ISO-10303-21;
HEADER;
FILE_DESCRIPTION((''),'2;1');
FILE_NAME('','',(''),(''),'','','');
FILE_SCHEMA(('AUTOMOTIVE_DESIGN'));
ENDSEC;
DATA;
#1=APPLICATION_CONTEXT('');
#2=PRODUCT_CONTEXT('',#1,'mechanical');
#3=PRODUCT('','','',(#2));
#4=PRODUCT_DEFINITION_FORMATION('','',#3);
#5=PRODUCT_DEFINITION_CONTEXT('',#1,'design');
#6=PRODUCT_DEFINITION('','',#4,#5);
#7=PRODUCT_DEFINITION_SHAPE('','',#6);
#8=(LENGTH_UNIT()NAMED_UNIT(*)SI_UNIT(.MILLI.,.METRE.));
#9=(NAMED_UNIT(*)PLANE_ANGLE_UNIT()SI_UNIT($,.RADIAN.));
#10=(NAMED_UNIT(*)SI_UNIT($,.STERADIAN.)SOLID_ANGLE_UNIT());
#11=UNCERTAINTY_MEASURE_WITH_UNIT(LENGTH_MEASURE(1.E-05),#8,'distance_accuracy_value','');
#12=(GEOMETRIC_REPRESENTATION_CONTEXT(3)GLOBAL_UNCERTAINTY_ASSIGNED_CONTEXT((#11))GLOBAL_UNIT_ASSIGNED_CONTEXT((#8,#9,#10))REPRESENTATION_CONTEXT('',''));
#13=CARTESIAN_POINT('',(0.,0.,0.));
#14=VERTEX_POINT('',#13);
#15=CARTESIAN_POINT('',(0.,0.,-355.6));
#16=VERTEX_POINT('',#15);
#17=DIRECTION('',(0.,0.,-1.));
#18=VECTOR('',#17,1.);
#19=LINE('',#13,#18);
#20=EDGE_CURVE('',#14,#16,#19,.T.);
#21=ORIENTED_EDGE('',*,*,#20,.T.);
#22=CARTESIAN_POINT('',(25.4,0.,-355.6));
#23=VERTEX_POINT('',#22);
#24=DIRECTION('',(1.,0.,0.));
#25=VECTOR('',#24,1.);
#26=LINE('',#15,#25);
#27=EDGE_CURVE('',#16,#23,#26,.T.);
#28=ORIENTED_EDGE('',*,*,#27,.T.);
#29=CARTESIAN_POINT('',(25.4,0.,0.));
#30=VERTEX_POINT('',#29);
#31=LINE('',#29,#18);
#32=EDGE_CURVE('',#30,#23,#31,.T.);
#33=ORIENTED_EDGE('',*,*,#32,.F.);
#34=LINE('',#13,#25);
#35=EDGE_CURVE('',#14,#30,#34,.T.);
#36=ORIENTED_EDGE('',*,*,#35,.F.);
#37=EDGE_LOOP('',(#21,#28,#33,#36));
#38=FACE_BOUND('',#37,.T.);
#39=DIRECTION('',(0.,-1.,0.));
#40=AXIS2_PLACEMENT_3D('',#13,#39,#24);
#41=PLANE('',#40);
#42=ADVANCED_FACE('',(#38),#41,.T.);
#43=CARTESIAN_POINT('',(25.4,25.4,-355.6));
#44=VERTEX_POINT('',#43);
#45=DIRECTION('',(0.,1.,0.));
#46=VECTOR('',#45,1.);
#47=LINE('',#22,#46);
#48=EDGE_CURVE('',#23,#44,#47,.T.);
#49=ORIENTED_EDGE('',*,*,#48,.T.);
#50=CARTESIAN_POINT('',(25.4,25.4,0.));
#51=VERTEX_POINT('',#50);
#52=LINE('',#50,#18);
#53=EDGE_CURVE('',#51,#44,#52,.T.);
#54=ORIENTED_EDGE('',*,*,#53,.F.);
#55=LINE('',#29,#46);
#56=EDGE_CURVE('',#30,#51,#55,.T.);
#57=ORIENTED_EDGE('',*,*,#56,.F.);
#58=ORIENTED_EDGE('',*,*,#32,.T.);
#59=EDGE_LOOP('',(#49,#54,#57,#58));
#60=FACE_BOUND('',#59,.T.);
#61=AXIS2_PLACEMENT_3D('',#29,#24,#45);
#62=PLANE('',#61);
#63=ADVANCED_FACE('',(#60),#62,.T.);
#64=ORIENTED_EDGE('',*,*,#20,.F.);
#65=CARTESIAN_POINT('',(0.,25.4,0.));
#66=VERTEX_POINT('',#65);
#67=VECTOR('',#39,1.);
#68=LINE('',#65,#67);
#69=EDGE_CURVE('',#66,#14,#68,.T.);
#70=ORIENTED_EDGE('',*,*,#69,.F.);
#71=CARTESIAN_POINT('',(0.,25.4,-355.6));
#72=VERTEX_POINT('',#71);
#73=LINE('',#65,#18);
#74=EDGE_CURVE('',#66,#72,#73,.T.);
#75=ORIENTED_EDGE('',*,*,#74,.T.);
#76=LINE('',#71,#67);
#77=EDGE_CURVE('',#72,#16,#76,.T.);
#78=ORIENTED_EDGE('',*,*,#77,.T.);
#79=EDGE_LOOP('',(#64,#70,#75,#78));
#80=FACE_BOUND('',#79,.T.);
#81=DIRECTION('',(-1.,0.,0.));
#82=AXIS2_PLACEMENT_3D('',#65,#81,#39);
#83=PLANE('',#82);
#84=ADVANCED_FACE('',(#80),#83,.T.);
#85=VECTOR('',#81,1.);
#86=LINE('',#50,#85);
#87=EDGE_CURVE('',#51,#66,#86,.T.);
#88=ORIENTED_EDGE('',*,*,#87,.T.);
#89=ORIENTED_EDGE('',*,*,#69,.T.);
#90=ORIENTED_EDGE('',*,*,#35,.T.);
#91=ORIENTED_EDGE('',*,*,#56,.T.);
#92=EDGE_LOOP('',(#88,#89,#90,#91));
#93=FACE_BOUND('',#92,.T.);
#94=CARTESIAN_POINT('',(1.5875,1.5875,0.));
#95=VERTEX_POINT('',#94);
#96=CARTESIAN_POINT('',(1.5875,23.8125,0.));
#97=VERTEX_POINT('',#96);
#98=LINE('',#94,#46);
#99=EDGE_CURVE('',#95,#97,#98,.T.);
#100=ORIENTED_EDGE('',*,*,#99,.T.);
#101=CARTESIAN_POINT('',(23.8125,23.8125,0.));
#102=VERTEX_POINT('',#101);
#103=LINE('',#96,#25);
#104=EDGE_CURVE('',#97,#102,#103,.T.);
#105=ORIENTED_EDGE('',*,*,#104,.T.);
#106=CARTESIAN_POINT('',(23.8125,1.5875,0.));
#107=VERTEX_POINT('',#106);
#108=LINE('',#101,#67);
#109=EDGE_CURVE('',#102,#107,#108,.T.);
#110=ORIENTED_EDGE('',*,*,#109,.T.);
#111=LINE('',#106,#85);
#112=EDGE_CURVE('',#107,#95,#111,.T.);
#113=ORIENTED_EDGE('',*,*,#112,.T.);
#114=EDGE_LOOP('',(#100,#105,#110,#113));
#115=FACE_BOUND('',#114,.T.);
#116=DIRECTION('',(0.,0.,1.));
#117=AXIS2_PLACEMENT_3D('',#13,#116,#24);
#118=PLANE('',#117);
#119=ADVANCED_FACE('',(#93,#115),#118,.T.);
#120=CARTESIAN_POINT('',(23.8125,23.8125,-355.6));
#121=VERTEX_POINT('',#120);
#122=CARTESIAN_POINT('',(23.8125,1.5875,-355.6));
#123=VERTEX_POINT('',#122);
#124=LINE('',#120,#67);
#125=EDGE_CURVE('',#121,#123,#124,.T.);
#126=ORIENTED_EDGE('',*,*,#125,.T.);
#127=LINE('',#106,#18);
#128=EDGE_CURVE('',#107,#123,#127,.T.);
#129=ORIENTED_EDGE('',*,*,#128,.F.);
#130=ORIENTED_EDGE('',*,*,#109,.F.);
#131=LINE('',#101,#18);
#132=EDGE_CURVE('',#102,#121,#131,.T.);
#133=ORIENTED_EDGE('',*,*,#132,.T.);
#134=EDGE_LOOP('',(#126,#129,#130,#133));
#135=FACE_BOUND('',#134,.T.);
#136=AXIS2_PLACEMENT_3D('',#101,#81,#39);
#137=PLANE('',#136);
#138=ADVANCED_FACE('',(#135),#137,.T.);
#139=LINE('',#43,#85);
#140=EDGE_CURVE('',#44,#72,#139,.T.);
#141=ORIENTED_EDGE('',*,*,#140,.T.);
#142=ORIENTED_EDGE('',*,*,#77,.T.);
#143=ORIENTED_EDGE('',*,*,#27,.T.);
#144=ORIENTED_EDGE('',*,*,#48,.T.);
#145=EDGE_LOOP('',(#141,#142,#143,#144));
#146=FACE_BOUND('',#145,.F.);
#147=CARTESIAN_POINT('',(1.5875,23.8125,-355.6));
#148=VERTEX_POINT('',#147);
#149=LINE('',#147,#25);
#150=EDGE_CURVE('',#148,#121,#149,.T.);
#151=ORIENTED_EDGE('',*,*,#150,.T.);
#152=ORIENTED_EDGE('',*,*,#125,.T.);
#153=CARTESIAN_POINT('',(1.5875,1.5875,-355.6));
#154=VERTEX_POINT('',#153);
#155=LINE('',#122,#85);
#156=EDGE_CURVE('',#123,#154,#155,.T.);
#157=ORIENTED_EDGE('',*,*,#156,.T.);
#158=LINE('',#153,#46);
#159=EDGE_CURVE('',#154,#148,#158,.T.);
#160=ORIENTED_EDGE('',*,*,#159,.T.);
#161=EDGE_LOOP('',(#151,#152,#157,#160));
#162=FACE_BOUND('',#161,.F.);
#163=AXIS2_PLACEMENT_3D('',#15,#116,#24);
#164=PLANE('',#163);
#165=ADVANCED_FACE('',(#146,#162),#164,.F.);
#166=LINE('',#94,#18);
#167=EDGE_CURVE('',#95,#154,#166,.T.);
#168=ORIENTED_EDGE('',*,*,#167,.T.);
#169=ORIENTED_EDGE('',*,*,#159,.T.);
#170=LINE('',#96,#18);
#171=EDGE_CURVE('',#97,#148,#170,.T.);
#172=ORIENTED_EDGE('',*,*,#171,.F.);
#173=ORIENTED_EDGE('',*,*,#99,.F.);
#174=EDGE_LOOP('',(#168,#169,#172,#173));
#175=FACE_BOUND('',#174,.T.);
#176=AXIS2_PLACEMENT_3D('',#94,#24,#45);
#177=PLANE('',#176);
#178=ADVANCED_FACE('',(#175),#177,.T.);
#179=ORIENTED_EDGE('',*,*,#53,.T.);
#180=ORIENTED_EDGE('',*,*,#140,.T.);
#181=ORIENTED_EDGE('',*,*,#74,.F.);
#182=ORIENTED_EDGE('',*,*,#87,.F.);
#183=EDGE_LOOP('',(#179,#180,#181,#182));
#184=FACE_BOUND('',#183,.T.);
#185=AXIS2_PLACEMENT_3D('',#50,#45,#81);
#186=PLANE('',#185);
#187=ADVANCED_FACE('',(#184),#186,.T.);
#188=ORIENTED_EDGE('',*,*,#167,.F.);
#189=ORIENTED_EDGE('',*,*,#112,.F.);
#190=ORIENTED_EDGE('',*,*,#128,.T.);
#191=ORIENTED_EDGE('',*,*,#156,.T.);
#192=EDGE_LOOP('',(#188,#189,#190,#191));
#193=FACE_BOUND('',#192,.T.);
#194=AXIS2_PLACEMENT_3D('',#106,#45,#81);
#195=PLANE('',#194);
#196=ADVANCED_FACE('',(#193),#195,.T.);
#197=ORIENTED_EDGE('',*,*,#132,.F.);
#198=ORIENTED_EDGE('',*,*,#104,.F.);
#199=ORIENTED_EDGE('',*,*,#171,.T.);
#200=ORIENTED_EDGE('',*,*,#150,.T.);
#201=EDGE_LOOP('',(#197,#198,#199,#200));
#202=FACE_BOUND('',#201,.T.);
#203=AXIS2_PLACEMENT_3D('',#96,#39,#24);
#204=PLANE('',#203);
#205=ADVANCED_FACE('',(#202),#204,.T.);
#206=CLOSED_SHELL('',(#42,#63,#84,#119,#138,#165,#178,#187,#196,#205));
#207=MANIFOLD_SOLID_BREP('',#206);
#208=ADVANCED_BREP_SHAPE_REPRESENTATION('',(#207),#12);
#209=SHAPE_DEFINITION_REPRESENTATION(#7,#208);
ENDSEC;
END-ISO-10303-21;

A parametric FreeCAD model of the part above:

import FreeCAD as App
import Part
import Sketcher

V = App.Vector
Q = App.Units.Quantity

doc = App.newDocument("Part")
body = doc.addObject("PartDesign::Body", "Body")

# Sketch on XY plane
sketch1 = doc.addObject("Sketcher::SketchObject", "Sketch")
body.addObject(sketch1)
sketch1.AttachmentSupport = (doc.XY_Plane, [""])
sketch1.MapMode = "FlatFace"
sketch1.addGeometry([
    Part.LineSegment(V(0, 25, 0), V(0, 0, 0)),  # 0
    Part.LineSegment(V(0, 0, 0), V(25, 0, 0)),  # 1
    Part.LineSegment(V(25, 0, 0), V(25, 25, 0)),  # 2
    Part.LineSegment(V(25, 25, 0), V(0, 25, 0)),  # 3
    Part.LineSegment(V(2, 2, 0), V(2, 24, 0)),  # 4
    Part.LineSegment(V(2, 24, 0), V(24, 24, 0)),  # 5
    Part.LineSegment(V(24, 24, 0), V(24, 2, 0)),  # 6
    Part.LineSegment(V(24, 2, 0), V(2, 2, 0)),  # 7
], False)
sketch1.addConstraint([
    Sketcher.Constraint("Coincident", 0, 2, 1, 1),
    Sketcher.Constraint("Coincident", 1, 2, 2, 1),
    Sketcher.Constraint("Coincident", 2, 2, 3, 1),
    Sketcher.Constraint("Coincident", 3, 2, 0, 1),
    Sketcher.Constraint("Coincident", 4, 2, 5, 1),
    Sketcher.Constraint("Coincident", 5, 2, 6, 1),
    Sketcher.Constraint("Coincident", 6, 2, 7, 1),
    Sketcher.Constraint("Coincident", 7, 2, 4, 1),
    Sketcher.Constraint("Vertical", 0),
    Sketcher.Constraint("Horizontal", 1),
    Sketcher.Constraint("Vertical", 2),
    Sketcher.Constraint("Horizontal", 3),
    Sketcher.Constraint("Vertical", 4),
    Sketcher.Constraint("Horizontal", 5),
    Sketcher.Constraint("Vertical", 6),
    Sketcher.Constraint("Horizontal", 7),
    Sketcher.Constraint("Coincident", 0, 2, -1, 1),
    Sketcher.Constraint("Equal", 3, 0),
    Sketcher.Constraint("Equal", 7, 4),
    Sketcher.Constraint("DistanceX", 1, 1, 1, 2, Q("1 in")),
    Sketcher.Constraint("DistanceX", -1, 1, 4, 2, Q("0.0625 in")),
    Sketcher.Constraint("DistanceY", -1, 1, 6, 2, Q("0.0625 in")),
    Sketcher.Constraint("DistanceY", 4, 2, 3, 2, Q("0.0625 in")),
])
pad1 = doc.addObject("PartDesign::Pad", "Pad")
body.addObject(pad1)
pad1.Profile = sketch1
pad1.Length = Q("14 in")
pad1.Reversed = True

doc.recompute()
